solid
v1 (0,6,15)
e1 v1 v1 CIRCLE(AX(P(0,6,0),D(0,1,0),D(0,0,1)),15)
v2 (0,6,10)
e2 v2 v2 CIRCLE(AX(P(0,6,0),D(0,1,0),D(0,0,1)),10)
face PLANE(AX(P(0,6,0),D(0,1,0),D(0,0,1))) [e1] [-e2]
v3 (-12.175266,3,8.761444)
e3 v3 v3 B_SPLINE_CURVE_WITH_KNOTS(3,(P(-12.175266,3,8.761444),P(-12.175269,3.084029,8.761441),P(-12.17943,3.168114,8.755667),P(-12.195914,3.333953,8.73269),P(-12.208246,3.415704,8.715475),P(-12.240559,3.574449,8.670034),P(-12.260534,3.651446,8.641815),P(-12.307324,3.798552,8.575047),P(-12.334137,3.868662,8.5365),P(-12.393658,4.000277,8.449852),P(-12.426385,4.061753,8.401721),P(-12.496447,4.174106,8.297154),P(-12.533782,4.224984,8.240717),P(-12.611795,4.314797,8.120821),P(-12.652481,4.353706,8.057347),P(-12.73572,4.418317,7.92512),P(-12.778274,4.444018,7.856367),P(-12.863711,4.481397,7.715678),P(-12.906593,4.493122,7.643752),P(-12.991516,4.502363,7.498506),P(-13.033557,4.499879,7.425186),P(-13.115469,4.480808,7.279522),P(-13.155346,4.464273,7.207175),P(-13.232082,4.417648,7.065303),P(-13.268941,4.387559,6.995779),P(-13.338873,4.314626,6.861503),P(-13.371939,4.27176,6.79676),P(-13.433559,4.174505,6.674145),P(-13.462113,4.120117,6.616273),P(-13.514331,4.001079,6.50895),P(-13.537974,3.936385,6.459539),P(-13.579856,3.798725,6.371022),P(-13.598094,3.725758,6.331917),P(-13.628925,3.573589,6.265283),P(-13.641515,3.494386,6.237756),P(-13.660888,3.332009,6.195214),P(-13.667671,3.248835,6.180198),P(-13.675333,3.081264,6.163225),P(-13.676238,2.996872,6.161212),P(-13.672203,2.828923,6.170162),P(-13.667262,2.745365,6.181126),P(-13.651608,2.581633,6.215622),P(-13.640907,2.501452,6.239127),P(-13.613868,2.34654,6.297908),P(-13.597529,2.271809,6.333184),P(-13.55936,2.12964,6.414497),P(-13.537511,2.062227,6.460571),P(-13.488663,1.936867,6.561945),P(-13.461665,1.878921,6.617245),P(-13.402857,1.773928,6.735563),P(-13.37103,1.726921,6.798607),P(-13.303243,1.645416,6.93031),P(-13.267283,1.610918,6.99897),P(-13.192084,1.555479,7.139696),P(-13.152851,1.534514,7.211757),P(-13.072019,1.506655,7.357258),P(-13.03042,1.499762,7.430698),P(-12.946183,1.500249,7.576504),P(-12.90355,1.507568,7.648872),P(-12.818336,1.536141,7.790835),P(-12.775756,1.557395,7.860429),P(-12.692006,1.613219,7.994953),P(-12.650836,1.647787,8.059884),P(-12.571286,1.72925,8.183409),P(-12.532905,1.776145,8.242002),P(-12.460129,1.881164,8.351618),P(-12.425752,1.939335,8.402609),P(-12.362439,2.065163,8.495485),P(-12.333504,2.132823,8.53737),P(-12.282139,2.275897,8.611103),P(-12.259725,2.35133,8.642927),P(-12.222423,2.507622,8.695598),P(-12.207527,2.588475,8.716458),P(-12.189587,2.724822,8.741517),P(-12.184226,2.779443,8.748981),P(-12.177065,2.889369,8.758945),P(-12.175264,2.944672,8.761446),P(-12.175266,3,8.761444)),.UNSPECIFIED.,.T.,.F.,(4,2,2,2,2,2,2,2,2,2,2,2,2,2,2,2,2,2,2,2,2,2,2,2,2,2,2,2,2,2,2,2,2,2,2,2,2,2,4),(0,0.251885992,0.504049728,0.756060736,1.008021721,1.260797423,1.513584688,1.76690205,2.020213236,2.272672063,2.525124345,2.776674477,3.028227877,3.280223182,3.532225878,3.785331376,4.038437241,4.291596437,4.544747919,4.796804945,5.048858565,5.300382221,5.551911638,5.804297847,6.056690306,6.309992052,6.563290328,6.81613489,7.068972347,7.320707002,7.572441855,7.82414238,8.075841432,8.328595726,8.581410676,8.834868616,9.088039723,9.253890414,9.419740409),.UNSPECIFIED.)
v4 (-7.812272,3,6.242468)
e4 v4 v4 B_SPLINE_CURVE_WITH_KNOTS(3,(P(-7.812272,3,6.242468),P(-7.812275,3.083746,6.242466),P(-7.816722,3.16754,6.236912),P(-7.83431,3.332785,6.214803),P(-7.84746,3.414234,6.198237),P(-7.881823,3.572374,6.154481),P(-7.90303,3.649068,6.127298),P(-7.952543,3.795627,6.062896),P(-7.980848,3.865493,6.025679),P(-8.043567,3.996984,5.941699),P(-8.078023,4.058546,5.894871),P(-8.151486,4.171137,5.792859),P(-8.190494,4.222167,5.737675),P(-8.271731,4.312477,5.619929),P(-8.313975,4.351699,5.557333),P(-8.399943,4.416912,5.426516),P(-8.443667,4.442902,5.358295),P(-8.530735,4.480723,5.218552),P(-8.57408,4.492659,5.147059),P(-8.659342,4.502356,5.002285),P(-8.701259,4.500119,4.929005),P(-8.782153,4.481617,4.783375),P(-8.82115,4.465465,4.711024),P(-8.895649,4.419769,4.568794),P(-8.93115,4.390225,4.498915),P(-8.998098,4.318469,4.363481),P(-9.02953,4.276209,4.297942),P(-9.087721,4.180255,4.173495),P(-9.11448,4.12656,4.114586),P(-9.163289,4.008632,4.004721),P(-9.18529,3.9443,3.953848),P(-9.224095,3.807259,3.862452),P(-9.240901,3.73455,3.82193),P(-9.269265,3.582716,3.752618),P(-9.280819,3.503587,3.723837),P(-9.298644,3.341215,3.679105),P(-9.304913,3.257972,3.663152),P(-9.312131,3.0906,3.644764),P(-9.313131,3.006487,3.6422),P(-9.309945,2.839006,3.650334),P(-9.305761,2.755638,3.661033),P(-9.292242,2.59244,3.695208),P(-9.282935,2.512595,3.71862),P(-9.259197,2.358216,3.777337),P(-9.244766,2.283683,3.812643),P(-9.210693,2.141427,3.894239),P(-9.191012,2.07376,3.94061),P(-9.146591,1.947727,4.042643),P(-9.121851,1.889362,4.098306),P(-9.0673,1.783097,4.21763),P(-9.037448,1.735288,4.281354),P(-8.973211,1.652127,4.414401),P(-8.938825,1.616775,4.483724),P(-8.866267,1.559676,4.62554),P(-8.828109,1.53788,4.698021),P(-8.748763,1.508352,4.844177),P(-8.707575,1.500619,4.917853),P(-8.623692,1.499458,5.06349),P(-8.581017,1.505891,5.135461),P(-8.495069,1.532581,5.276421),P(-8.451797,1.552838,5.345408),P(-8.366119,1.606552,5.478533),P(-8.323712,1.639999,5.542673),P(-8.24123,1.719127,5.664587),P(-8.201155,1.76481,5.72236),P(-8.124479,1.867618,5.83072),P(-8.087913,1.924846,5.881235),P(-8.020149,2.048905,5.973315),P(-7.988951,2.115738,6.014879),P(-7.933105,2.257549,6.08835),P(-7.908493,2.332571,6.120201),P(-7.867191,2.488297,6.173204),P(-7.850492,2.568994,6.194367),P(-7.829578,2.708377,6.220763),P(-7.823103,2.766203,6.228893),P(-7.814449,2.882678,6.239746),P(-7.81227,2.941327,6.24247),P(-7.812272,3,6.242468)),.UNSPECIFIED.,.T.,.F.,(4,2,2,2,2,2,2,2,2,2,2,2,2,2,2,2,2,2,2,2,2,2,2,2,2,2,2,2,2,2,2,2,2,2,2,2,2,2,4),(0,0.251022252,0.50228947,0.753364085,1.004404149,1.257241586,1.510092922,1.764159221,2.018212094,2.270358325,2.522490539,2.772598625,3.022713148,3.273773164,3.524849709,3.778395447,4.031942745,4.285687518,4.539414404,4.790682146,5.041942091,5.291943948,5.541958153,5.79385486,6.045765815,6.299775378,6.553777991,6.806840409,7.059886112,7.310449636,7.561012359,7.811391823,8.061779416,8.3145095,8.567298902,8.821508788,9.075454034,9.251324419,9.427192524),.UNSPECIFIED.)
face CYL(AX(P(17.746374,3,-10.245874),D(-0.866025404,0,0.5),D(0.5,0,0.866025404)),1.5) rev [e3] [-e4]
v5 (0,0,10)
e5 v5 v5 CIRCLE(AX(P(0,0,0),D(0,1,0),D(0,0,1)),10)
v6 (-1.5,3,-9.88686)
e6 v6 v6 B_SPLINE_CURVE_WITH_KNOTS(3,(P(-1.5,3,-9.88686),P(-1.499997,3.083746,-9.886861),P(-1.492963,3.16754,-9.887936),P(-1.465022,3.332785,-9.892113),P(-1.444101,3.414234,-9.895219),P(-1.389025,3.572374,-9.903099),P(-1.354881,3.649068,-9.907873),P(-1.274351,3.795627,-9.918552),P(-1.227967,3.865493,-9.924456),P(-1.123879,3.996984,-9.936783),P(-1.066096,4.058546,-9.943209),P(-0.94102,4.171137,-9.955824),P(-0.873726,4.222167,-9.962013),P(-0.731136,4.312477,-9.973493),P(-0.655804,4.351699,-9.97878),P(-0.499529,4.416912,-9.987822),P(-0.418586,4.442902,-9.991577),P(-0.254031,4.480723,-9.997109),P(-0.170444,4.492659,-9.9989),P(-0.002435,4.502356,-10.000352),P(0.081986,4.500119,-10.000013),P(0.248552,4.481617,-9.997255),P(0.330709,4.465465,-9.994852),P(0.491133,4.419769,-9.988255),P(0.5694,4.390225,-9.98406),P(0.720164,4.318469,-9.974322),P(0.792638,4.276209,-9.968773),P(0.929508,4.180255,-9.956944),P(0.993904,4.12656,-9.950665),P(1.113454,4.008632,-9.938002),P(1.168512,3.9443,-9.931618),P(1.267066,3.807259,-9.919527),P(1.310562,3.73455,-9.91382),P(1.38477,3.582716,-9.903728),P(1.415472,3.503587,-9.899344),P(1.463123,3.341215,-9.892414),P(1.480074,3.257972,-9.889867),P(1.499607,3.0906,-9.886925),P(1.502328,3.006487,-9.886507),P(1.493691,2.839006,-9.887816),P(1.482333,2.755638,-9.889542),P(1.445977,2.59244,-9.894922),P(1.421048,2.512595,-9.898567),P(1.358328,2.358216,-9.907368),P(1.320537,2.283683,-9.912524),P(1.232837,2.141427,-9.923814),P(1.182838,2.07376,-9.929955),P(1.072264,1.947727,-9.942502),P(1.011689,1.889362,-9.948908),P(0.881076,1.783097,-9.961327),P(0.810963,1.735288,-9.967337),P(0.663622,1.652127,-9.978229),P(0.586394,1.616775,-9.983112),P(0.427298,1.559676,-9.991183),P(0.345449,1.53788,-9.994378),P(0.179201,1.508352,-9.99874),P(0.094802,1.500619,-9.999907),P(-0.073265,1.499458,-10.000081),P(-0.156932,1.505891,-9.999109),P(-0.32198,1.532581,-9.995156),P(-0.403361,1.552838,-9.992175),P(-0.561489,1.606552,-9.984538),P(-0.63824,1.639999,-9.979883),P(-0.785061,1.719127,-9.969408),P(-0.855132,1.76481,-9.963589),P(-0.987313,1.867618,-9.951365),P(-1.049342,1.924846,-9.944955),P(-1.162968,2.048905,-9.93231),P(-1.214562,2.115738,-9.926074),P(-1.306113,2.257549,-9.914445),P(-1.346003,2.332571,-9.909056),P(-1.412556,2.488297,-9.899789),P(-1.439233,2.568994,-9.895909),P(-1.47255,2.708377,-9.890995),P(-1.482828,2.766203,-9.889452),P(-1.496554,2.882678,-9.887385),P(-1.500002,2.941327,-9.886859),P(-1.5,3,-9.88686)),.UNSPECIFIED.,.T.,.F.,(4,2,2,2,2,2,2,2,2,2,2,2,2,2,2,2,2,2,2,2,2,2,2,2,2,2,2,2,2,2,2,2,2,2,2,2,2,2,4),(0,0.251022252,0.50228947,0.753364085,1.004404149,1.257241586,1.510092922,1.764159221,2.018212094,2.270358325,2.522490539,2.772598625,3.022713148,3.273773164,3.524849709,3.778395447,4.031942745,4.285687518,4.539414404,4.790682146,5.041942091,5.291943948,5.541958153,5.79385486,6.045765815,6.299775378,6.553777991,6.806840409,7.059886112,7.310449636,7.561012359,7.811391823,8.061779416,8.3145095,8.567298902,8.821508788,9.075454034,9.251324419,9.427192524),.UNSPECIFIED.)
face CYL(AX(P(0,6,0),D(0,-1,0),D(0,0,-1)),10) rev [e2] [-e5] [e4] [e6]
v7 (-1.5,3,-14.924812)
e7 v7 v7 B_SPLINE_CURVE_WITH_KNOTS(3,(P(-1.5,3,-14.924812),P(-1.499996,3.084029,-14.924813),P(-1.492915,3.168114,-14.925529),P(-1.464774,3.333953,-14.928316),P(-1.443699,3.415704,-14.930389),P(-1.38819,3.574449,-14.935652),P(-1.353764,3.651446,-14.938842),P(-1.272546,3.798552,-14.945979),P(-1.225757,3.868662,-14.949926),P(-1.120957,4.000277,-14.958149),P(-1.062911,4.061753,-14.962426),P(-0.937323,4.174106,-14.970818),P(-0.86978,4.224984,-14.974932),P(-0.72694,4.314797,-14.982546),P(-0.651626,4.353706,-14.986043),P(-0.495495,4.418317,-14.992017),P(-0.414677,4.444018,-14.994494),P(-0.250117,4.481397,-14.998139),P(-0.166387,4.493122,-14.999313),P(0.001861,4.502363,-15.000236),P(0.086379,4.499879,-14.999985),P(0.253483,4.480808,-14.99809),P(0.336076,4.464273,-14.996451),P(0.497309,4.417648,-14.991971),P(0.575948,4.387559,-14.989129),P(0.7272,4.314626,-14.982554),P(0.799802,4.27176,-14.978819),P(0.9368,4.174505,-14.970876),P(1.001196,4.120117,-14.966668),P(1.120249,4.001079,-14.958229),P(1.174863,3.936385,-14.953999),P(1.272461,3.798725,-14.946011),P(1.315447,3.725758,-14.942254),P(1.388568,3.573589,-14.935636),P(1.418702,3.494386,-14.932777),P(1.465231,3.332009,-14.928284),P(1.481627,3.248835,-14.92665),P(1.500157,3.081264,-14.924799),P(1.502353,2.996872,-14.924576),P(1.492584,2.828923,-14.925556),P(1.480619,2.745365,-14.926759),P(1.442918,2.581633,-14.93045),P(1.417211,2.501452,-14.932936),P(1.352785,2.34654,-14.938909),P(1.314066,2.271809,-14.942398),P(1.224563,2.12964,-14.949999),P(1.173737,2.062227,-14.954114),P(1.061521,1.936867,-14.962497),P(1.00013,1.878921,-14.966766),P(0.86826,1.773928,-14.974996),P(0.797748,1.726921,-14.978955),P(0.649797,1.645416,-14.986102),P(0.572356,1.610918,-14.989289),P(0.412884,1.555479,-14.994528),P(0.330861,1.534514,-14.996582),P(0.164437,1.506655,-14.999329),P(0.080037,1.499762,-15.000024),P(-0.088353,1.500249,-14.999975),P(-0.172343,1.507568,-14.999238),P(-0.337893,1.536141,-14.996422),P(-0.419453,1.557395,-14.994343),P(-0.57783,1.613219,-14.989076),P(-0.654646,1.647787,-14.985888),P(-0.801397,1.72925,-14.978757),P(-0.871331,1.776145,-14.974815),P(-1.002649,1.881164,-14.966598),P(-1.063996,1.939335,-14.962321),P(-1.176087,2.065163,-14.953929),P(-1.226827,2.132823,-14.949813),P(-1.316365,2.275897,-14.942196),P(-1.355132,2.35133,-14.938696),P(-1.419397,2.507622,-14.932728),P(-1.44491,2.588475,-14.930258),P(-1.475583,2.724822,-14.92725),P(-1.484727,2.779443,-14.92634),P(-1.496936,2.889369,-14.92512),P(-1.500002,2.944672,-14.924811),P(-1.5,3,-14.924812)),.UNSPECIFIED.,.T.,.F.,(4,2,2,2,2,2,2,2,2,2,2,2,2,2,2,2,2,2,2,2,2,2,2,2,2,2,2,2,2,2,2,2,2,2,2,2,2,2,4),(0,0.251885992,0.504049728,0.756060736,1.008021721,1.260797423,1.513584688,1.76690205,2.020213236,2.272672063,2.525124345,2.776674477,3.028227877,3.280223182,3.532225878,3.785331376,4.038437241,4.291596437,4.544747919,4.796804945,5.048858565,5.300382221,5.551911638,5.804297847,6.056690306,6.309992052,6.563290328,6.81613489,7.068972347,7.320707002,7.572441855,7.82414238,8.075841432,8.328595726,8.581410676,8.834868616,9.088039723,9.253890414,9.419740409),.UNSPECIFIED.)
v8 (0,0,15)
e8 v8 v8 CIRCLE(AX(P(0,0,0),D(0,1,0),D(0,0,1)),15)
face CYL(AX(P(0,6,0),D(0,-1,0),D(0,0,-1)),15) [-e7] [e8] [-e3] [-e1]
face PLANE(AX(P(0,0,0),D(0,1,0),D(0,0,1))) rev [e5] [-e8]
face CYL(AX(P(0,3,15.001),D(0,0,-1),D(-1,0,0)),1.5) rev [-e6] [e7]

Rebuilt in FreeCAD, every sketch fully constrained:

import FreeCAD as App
import Part
import Sketcher

V = App.Vector
Q = App.Units.Quantity

doc = App.newDocument("Part")
body = doc.addObject("PartDesign::Body", "Body")

# Sketch on XZ plane
sketch1 = body.newObject("Sketcher::SketchObject", "Sketch")
sketch1.AttachmentSupport = (doc.getObject("XZ_Plane"), [""])
sketch1.MapMode = "FlatFace"
sketch1.addGeometry([
    Part.Circle(V(0, 0, 0), V(0, 0, 1), 15),
    Part.Circle(V(0, 0, 0), V(0, 0, 1), 10),
], False)
sketch1.addConstraint([
    Sketcher.Constraint("Coincident", 0, 3, -1, 1),
    Sketcher.Constraint("Coincident", 1, 3, -1, 1),
    Sketcher.Constraint("Diameter", 0, Q("30 mm")),
    Sketcher.Constraint("Diameter", 1, Q("20 mm")),
])
pad1 = body.newObject("PartDesign::Pad", "Pad")
pad1.Profile = sketch1
pad1.Length = 6
pad1.Reversed = True

# Sketch on XY plane
sketch2 = body.newObject("Sketcher::SketchObject", "Sketch001")
sketch2.AttachmentSupport = (doc.getObject("XY_Plane"), [""])
sketch2.MapMode = "FlatFace"
sketch2.AttachmentOffset = App.Placement(V(0, 0, -15), App.Rotation())
sketch2.addGeometry(Part.Circle(V(0, 3, 0), V(0, 0, 1), 1.5), False)
sketch2.addConstraint([
    Sketcher.Constraint("PointOnObject", 0, 3, -2),
    Sketcher.Constraint("Diameter", 0, Q("3 mm")),
    Sketcher.Constraint("DistanceY", -1, 1, 0, 3, Q("3 mm")),
])
pocket1 = body.newObject("PartDesign::Pocket", "Pocket")
pocket1.Profile = sketch2
pocket1.Length = 5.11314
pocket1.Reversed = True

# Sketch on an angled plane
sketch3 = body.newObject("Sketcher::SketchObject", "Sketch002")
sketch3.Placement = App.Placement(V(-12.990381, 0, 7.5), App.Rotation(V(0, -1, 0), V(0.5, 0, 0.866025404), V(-0.866025404, 0, 0.5), "ZXY"))
sketch3.addGeometry(Part.Circle(V(-3, 0, 0), V(0, 0, 1), 1.5), False)
sketch3.addConstraint([
    Sketcher.Constraint("PointOnObject", 0, 3, -1),
    Sketcher.Constraint("Diameter", 0, Q("3 mm")),
    Sketcher.Constraint("DistanceX", 0, 3, -1, 1, Q("3 mm")),
])
pocket2 = body.newObject("PartDesign::Pocket", "Pocket001")
pocket2.Profile = sketch3
pocket2.Type = "UpToFirst"

doc.recompute()
